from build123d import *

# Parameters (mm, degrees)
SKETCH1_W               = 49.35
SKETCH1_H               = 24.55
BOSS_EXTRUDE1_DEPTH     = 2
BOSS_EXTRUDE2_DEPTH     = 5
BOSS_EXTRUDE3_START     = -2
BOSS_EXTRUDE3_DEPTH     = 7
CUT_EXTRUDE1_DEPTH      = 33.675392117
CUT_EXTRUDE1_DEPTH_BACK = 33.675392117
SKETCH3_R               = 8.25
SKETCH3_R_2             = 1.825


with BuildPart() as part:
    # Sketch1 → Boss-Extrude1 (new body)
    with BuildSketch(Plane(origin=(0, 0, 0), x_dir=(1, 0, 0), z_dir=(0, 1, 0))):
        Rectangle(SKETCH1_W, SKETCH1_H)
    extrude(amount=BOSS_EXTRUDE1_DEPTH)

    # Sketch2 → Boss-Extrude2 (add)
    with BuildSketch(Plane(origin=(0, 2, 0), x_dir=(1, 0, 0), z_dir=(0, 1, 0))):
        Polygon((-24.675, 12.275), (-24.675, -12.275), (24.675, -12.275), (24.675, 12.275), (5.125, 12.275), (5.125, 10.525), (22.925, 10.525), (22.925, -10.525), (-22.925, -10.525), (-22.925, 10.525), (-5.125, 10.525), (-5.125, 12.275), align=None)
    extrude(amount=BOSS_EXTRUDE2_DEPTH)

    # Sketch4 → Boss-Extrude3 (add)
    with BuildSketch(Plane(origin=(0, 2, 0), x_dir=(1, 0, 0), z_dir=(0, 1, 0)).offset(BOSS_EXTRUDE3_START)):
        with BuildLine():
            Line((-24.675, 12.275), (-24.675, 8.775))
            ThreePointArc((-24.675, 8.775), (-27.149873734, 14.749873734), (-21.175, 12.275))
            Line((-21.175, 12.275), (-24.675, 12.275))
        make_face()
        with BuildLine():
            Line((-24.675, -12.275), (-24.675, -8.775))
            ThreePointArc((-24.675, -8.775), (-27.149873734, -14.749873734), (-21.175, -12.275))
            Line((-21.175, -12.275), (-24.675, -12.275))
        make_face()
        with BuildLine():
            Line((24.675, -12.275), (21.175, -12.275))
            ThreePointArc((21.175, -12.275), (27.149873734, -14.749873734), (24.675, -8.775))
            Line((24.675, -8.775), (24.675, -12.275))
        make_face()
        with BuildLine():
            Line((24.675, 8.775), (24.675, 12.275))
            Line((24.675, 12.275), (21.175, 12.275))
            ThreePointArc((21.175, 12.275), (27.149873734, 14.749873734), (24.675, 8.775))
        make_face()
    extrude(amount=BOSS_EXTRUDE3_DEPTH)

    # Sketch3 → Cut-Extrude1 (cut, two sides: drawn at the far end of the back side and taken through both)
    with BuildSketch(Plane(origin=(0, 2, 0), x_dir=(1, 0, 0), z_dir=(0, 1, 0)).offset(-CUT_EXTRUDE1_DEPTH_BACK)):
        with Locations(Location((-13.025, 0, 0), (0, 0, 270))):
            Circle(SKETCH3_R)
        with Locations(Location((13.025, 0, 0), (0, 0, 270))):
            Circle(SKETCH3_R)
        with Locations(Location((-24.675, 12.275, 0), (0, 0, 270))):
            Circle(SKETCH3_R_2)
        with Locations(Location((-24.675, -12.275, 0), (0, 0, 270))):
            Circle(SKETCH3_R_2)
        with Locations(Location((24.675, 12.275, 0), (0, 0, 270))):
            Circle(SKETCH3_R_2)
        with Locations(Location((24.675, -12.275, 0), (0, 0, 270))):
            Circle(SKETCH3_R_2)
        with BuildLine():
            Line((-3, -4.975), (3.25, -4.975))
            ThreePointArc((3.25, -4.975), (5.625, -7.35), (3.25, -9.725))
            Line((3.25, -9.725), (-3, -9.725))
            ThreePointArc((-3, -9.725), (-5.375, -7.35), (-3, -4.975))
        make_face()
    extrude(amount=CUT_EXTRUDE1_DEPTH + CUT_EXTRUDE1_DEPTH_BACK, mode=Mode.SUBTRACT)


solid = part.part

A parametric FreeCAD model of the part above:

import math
import FreeCAD as App
import Part
import Sketcher


def add_polygon(sketch, points):
    """Adds a closed chain of lines whose ends are joined by coincident constraints."""
    first, n = sketch.GeometryCount, len(points)
    for a, b in zip(points, points[1:] + points[:1]):
        sketch.addGeometry(Part.LineSegment(App.Vector(*a, 0), App.Vector(*b, 0)), False)
    for i in range(n):
        sketch.addConstraint(Sketcher.Constraint("Coincident", first + i, 2, first + (i + 1) % n, 1))

doc = App.newDocument("Part")
body = doc.addObject("PartDesign::Body", "Body")

# Sketch on XZ plane
sketch1 = doc.addObject("Sketcher::SketchObject", "Sketch")
body.addObject(sketch1)
sketch1.AttachmentSupport = (doc.XZ_Plane, [""])
sketch1.MapMode = "FlatFace"
add_polygon(sketch1, [(-24.675, -12.275), (-24.675, 12.275), (24.675, 12.275), (24.675, -12.275)])  # lines 0-3
sketch1.addConstraint([
    Sketcher.Constraint("Vertical", 0),
    Sketcher.Constraint("Horizontal", 1),
    Sketcher.Constraint("Vertical", 2),
    Sketcher.Constraint("Horizontal", 3),
    Sketcher.Constraint("Symmetric", 0, 2, 2, 2, -1, 1),
    Sketcher.Constraint("DistanceX", 1, 1, 1, 2, 49.35),
    Sketcher.Constraint("DistanceY", 0, 1, 0, 2, 24.55),
])
pad1 = doc.addObject("PartDesign::Pad", "Pad")
body.addObject(pad1)
pad1.Profile = sketch1
pad1.Length = 2
pad1.Reversed = True

# Sketch on XZ plane
sketch2 = doc.addObject("Sketcher::SketchObject", "Sketch001")
body.addObject(sketch2)
sketch2.AttachmentSupport = (doc.XZ_Plane, [""])
sketch2.MapMode = "FlatFace"
sketch2.AttachmentOffset = App.Placement(App.Vector(0, 0, -2), App.Rotation())
add_polygon(sketch2, [(-24.675, -12.275), (-24.675, 12.275), (24.675, 12.275), (24.675, -12.275), (5.125, -12.275), (5.125, -10.525), (22.925, -10.525), (22.925, 10.525), (-22.925, 10.525), (-22.925, -10.525), (-5.125, -10.525), (-5.125, -12.275)])  # lines 0-11
sketch2.addConstraint([
    Sketcher.Constraint("Vertical", 0),
    Sketcher.Constraint("Horizontal", 1),
    Sketcher.Constraint("Vertical", 2),
    Sketcher.Constraint("Horizontal", 3),
    Sketcher.Constraint("Vertical", 4),
    Sketcher.Constraint("Horizontal", 5),
    Sketcher.Constraint("Vertical", 6),
    Sketcher.Constraint("Horizontal", 7),
    Sketcher.Constraint("Vertical", 8),
    Sketcher.Constraint("Horizontal", 9),
    Sketcher.Constraint("Vertical", 10),
    Sketcher.Constraint("Horizontal", 11),
    Sketcher.Constraint("Symmetric", 0, 2, 2, 2, -1, 1),
    Sketcher.Constraint("Symmetric", 5, 2, 7, 2, -1, 1),
    Sketcher.Constraint("Symmetric", 4, 2, 9, 2, -2),
    Sketcher.Constraint("Horizontal", 3, 2, 10, 2),
    Sketcher.Constraint("DistanceX", 5, 1, 5, 2, 17.8),
    Sketcher.Constraint("DistanceX", 1, 1, 1, 2, 49.35),
    Sketcher.Constraint("DistanceX", 3, 2, 3, 1, 19.55),
    Sketcher.Constraint("DistanceY", 0, 1, 0, 2, 24.55),
    Sketcher.Constraint("DistanceY", 4, 1, 4, 2, 1.75),
])
pad2 = doc.addObject("PartDesign::Pad", "Pad001")
body.addObject(pad2)
pad2.Profile = sketch2
pad2.Length = 5
pad2.Reversed = True

# Sketch on XZ plane
sketch3 = doc.addObject("Sketcher::SketchObject", "Sketch002")
body.addObject(sketch3)
sketch3.AttachmentSupport = (doc.XZ_Plane, [""])
sketch3.MapMode = "FlatFace"
sketch3.addGeometry([
    Part.LineSegment(App.Vector(-24.675, -8.775, 0), App.Vector(-24.675, -12.275, 0)),  # 0
    Part.LineSegment(App.Vector(-24.675, -12.275, 0), App.Vector(-21.175, -12.275, 0)),  # 1
    Part.ArcOfCircle(Part.Circle(App.Vector(-24.675, -12.275, 0), App.Vector(0, 0, 1), 3.5), math.radians(90), math.radians(360)),  # 2
    Part.LineSegment(App.Vector(-24.675, 12.275, 0), App.Vector(-24.675, 8.775, 0)),  # 3
    Part.ArcOfCircle(Part.Circle(App.Vector(-24.675, 12.275, 0), App.Vector(0, 0, 1), 3.5), math.radians(0), math.radians(270)),  # 4
    Part.LineSegment(App.Vector(-21.175, 12.275, 0), App.Vector(-24.675, 12.275, 0)),  # 5
    Part.LineSegment(App.Vector(24.675, 12.275, 0), App.Vector(21.175, 12.275, 0)),  # 6
    Part.ArcOfCircle(Part.Circle(App.Vector(24.675, 12.275, 0), App.Vector(0, 0, 1), 3.5), math.radians(-90), math.radians(180)),  # 7
    Part.LineSegment(App.Vector(24.675, 8.775, 0), App.Vector(24.675, 12.275, 0)),  # 8
    Part.LineSegment(App.Vector(24.675, -12.275, 0), App.Vector(24.675, -8.775, 0)),  # 9
    Part.ArcOfCircle(Part.Circle(App.Vector(24.675, -12.275, 0), App.Vector(0, 0, 1), 3.5), math.radians(180), math.radians(450)),  # 10
    Part.LineSegment(App.Vector(21.175, -12.275, 0), App.Vector(24.675, -12.275, 0)),  # 11
], False)
sketch3.addConstraint([
    Sketcher.Constraint("Coincident", 0, 2, 1, 1),
    Sketcher.Constraint("Coincident", 1, 2, 2, 2),
    Sketcher.Constraint("Coincident", 2, 1, 0, 1),
    Sketcher.Constraint("Coincident", 3, 2, 4, 2),
    Sketcher.Constraint("Coincident", 4, 1, 5, 1),
    Sketcher.Constraint("Coincident", 5, 2, 3, 1),
    Sketcher.Constraint("Coincident", 6, 2, 7, 2),
    Sketcher.Constraint("Coincident", 7, 1, 8, 1),
    Sketcher.Constraint("Coincident", 8, 2, 6, 1),
    Sketcher.Constraint("Coincident", 9, 2, 10, 2),
    Sketcher.Constraint("Coincident", 10, 1, 11, 1),
    Sketcher.Constraint("Coincident", 11, 2, 9, 1),
    Sketcher.Constraint("Vertical", 0),
    Sketcher.Constraint("Horizontal", 1),
    Sketcher.Constraint("Vertical", 3),
    Sketcher.Constraint("Horizontal", 5),
    Sketcher.Constraint("Horizontal", 6),
    Sketcher.Constraint("Vertical", 8),
    Sketcher.Constraint("Vertical", 9),
    Sketcher.Constraint("Horizontal", 11),
    Sketcher.Constraint("Coincident", 0, 2, 2, 3),
    Sketcher.Constraint("Coincident", 5, 2, 4, 3),
    Sketcher.Constraint("Coincident", 8, 2, 7, 3),
    Sketcher.Constraint("Coincident", 11, 2, 10, 3),
    Sketcher.Constraint("Equal", 2, 4),
    Sketcher.Constraint("Equal", 4, 7),
    Sketcher.Constraint("Equal", 7, 10),
    Sketcher.Constraint("Symmetric", 2, 3, 7, 3, -1, 1),
    Sketcher.Constraint("Symmetric", 4, 3, 10, 3, -1, 1),
    Sketcher.Constraint("Symmetric", 4, 3, 7, 3, -2),
    Sketcher.Constraint("Radius", 2, 3.5),
    Sketcher.Constraint("DistanceY", 2, 3, 4, 3, 24.55),
    Sketcher.Constraint("DistanceX", 4, 3, 7, 3, 49.35),
])
pad3 = doc.addObject("PartDesign::Pad", "Pad002")
body.addObject(pad3)
pad3.Profile = sketch3
pad3.Length = 7
pad3.Reversed = True

# Sketch on XZ plane
sketch4 = doc.addObject("Sketcher::SketchObject", "Sketch003")
body.addObject(sketch4)
sketch4.AttachmentSupport = (doc.XZ_Plane, [""])
sketch4.MapMode = "FlatFace"
sketch4.AttachmentOffset = App.Placement(App.Vector(0, 0, -2), App.Rotation())
sketch4.addGeometry([
    Part.Circle(App.Vector(-13.025, 0, 0), App.Vector(0, 0, 1), 8.25),  # 0
    Part.Circle(App.Vector(13.025, 0, 0), App.Vector(0, 0, 1), 8.25),  # 1
    Part.Circle(App.Vector(-24.675, -12.275, 0), App.Vector(0, 0, 1), 1.825),  # 2
    Part.Circle(App.Vector(-24.675, 12.275, 0), App.Vector(0, 0, 1), 1.825),  # 3
    Part.Circle(App.Vector(24.675, -12.275, 0), App.Vector(0, 0, 1), 1.825),  # 4
    Part.Circle(App.Vector(24.675, 12.275, 0), App.Vector(0, 0, 1), 1.825),  # 5
    Part.LineSegment(App.Vector(3.25, 4.975, 0), App.Vector(-3, 4.975, 0)),  # 6
    Part.ArcOfCircle(Part.Circle(App.Vector(-3, 7.35, 0), App.Vector(0, 0, 1), 2.375), math.radians(90), math.radians(270)),  # 7
    Part.LineSegment(App.Vector(-3, 9.725, 0), App.Vector(3.25, 9.725, 0)),  # 8
    Part.ArcOfCircle(Part.Circle(App.Vector(3.25, 7.35, 0), App.Vector(0, 0, 1), 2.375), math.radians(-90), math.radians(90)),  # 9
], False)
sketch4.addConstraint([
    Sketcher.Constraint("Tangent", 6, 2, 7, 2),
    Sketcher.Constraint("Tangent", 7, 1, 8, 1),
    Sketcher.Constraint("Tangent", 8, 2, 9, 2),
    Sketcher.Constraint("Tangent", 9, 1, 6, 1),
    Sketcher.Constraint("Horizontal", 6),
    Sketcher.Constraint("Horizontal", 8),
    Sketcher.Constraint("Equal", 0, 1),
    Sketcher.Constraint("Equal", 2, 3),
    Sketcher.Constraint("Equal", 3, 4),
    Sketcher.Constraint("Equal", 4, 5),
    Sketcher.Constraint("Symmetric", 0, 3, 1, 3, -1, 1),
    Sketcher.Constraint("Symmetric", 3, 3, 4, 3, -1, 1),
    Sketcher.Constraint("Symmetric", 2, 3, 5, 3, -1, 1),
    Sketcher.Constraint("Symmetric", 2, 3, 4, 3, -2),
    Sketcher.Constraint("PointOnObject", 0, 3, -1),
    Sketcher.Constraint("Diameter", 0, 16.5),
    Sketcher.Constraint("Diameter", 2, 3.65),
    Sketcher.Constraint("DistanceX", 7, 3, -1, 1, 3.0),
    Sketcher.Constraint("Radius", 7, 2.375),
    Sketcher.Constraint("DistanceX", 6, 2, 6, 1, 6.25),
    Sketcher.Constraint("DistanceX", 2, 3, 1, 3, 37.7),
    Sketcher.Constraint("DistanceY", 6, 2, 3, 3, 7.3),
    Sketcher.Constraint("DistanceY", -1, 1, 7, 3, 7.35),
    Sketcher.Constraint("DistanceX", 0, 3, 1, 3, 26.05),
])
pocket1 = doc.addObject("PartDesign::Pocket", "Pocket")
body.addObject(pocket1)
pocket1.Profile = sketch4
pocket1.Type = "ThroughAll"
pocket1.Midplane = True

doc.recompute()
